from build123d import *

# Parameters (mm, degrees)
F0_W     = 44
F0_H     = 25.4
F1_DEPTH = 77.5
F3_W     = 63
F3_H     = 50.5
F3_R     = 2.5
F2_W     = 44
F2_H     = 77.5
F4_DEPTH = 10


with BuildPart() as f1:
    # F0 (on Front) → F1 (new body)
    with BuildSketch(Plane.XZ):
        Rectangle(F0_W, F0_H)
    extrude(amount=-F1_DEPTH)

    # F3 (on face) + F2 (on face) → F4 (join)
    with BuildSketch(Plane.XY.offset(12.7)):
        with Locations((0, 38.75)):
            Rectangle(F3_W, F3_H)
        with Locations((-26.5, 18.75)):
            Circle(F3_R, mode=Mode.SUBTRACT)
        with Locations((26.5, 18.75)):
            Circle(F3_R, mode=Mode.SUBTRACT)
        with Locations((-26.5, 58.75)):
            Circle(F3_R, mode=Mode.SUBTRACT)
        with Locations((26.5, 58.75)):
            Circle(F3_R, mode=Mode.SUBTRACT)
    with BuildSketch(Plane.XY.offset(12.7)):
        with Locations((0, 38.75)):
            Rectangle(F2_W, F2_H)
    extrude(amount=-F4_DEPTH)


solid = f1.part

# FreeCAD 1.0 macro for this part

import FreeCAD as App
import Part
import Sketcher
from FreeCAD import Vector
Q = App.Units.Quantity


def add_polygon(sketch, points):
    """Adds a closed chain of lines whose ends are joined by coincident constraints."""
    first, n = sketch.GeometryCount, len(points)
    for a, b in zip(points, points[1:] + points[:1]):
        sketch.addGeometry(Part.LineSegment(App.Vector(*a, 0), App.Vector(*b, 0)), False)
    for i in range(n):
        sketch.addConstraint(Sketcher.Constraint("Coincident", first + i, 2, first + (i + 1) % n, 1))

doc = App.newDocument("Part")
params = doc.addObject("Spreadsheet::Sheet", "Params")
for row, (alias, value) in enumerate([
    ("sketch1_width", "44 mm"),
    ("sketch1_height", "25.4 mm"),
    ("pad1_length", "77.5 mm"),
    ("sketch2_diameter", "5 mm"),
    ("sketch2_width", "44 mm"),
    ("sketch2_width2", "9.5 mm"),
    ("sketch2_height", "50.5 mm"),
    ("sketch2_height2", "13.5 mm"),
    ("pad2_length", "10 mm"),
], start=1):
    params.set(f"A{row}", alias)
    params.set(f"B{row}", "=" + value)
    params.setAlias(f"B{row}", alias)

body = doc.addObject("PartDesign::Body", "Body")

sketch1 = body.newObject("Sketcher::SketchObject", "Sketch")
sketch1.AttachmentSupport = (doc.getObject("XZ_Plane"), [""])
sketch1.MapMode = "FlatFace"
add_polygon(sketch1, [(-22, 12.7), (-22, -12.7), (22, -12.7), (22, 12.7)])
sketch1.addConstraint([
    Sketcher.Constraint("Vertical", 0),
    Sketcher.Constraint("Horizontal", 1),
    Sketcher.Constraint("Vertical", 2),
    Sketcher.Constraint("Horizontal", 3),
    Sketcher.Constraint("Symmetric", 0, 2, 2, 2, -1, 1),
    Sketcher.Constraint("DistanceX", 1, 1, 1, 2, Q("44 mm")),
    Sketcher.Constraint("DistanceY", 0, 2, 0, 1, Q("25.4 mm")),
])
sketch1.setExpression("Constraints[9]", "Params.sketch1_width")
sketch1.setExpression("Constraints[10]", "Params.sketch1_height")
pad1 = body.newObject("PartDesign::Pad", "Pad")
pad1.Profile = sketch1
pad1.setExpression("Length", "Params.pad1_length")
pad1.Reversed = True

sketch2 = body.newObject("Sketcher::SketchObject", "Sketch001")
sketch2.AttachmentSupport = (doc.getObject("XY_Plane"), [""])
sketch2.MapMode = "FlatFace"
sketch2.AttachmentOffset = App.Placement(Vector(0, 0, 12.7), App.Rotation())
add_polygon(sketch2, [(-31.5, 64), (-31.5, 13.5), (-22, 13.5), (-22, 0), (22, 0), (22, 13.5), (31.5, 13.5), (31.5, 64), (22, 64), (22, 77.5), (-22, 77.5), (-22, 64)])
sketch2.addGeometry(Part.Circle(Vector(-26.5, 18.75, 0), Vector(0, 0, 1), 2.5), False)
sketch2.addGeometry(Part.Circle(Vector(-26.5, 58.75, 0), Vector(0, 0, 1), 2.5), False)
sketch2.addGeometry(Part.Circle(Vector(26.5, 58.75, 0), Vector(0, 0, 1), 2.5), False)
sketch2.addGeometry(Part.Circle(Vector(26.5, 18.75, 0), Vector(0, 0, 1), 2.5), False)
sketch2.addConstraint([
    Sketcher.Constraint("Vertical", 0),
    Sketcher.Constraint("Horizontal", 1),
    Sketcher.Constraint("Vertical", 2),
    Sketcher.Constraint("Horizontal", 3),
    Sketcher.Constraint("Vertical", 4),
    Sketcher.Constraint("Horizontal", 5),
    Sketcher.Constraint("Vertical", 6),
    Sketcher.Constraint("Horizontal", 7),
    Sketcher.Constraint("Vertical", 8),
    Sketcher.Constraint("Horizontal", 9),
    Sketcher.Constraint("Vertical", 10),
    Sketcher.Constraint("Horizontal", 11),
    Sketcher.Constraint("Equal", 12, 13),
    Sketcher.Constraint("Equal", 13, 14),
    Sketcher.Constraint("Equal", 14, 15),
    Sketcher.Constraint("Symmetric", 2, 2, 3, 2, -1, 1),
    Sketcher.Constraint("Symmetric", 13, 3, 14, 3, -2),
    Sketcher.Constraint("Symmetric", 12, 3, 15, 3, -2),
    Sketcher.Constraint("Symmetric", 0, 2, 5, 2, -2),
    Sketcher.Constraint("Symmetric", 7, 2, 10, 2, -2),
    Sketcher.Constraint("Vertical", 12, 3, 13, 3),
    Sketcher.Constraint("Vertical", 4, 2, 7, 2),
    Sketcher.Constraint("Equal", 4, 8),
    Sketcher.Constraint("Diameter", 12, Q("5 mm")),
    Sketcher.Constraint("DistanceX", 3, 1, 3, 2, Q("44 mm")),
    Sketcher.Constraint("DistanceX", 1, 1, 1, 2, Q("9.5 mm")),
    Sketcher.Constraint("DistanceY", 0, 2, 0, 1, Q("50.5 mm")),
    Sketcher.Constraint("DistanceY", 2, 2, 2, 1, Q("13.5 mm")),
    Sketcher.Constraint("DistanceY", 12, 3, 13, 3, Q("40 mm")),
    Sketcher.Constraint("DistanceX", 13, 3, 14, 3, Q("53 mm")),
    Sketcher.Constraint("DistanceY", -1, 1, 12, 3, Q("18.75 mm")),
])
sketch2.setExpression("Constraints[35]", "Params.sketch2_diameter")
sketch2.setExpression("Constraints[36]", "Params.sketch2_width")
sketch2.setExpression("Constraints[37]", "Params.sketch2_width2")
sketch2.setExpression("Constraints[38]", "Params.sketch2_height")
sketch2.setExpression("Constraints[39]", "Params.sketch2_height2")
pad2 = body.newObject("PartDesign::Pad", "Pad001")
pad2.Profile = sketch2
pad2.setExpression("Length", "Params.pad2_length")
pad2.Reversed = True

doc.recompute()
